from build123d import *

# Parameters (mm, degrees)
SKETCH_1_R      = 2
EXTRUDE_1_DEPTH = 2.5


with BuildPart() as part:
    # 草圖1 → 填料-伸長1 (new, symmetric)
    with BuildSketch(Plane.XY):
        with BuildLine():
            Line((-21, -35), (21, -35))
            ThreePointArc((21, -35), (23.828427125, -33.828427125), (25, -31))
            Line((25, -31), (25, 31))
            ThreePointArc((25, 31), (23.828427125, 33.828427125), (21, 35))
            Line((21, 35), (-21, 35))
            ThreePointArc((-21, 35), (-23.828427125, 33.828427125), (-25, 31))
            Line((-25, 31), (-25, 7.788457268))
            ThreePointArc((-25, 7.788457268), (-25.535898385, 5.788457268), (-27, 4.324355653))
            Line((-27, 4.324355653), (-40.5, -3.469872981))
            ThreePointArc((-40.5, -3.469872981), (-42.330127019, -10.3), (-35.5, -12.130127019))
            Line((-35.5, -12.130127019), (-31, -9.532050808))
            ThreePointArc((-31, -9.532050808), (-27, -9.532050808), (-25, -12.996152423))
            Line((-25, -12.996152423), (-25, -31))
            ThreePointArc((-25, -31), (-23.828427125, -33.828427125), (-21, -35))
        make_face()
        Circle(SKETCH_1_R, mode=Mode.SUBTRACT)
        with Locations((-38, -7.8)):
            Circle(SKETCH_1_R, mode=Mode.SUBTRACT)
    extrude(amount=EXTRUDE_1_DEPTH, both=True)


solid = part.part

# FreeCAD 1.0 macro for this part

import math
import FreeCAD as App
import Part
import Sketcher
Q = App.Units.Quantity

doc = App.newDocument("Part")
body = doc.addObject("PartDesign::Body", "Body")

sketch1 = body.newObject("Sketcher::SketchObject", "Sketch")
sketch1.AttachmentSupport = (doc.getObject("XY_Plane"), [""])
sketch1.MapMode = "FlatFace"
sketch1.addGeometry([
    Part.LineSegment(App.Vector(-21, -35, 0), App.Vector(21, -35, 0)),
    Part.ArcOfCircle(Part.Circle(App.Vector(21, -31, 0), App.Vector(0, 0, 1), 4), math.radians(-90), math.radians(0)),
    Part.LineSegment(App.Vector(25, -31, 0), App.Vector(25, 31, 0)),
    Part.ArcOfCircle(Part.Circle(App.Vector(21, 31, 0), App.Vector(0, 0, 1), 4), math.radians(0), math.radians(90)),
    Part.LineSegment(App.Vector(21, 35, 0), App.Vector(-21, 35, 0)),
    Part.ArcOfCircle(Part.Circle(App.Vector(-21, 31, 0), App.Vector(0, 0, 1), 4), math.radians(90), math.radians(180)),
    Part.LineSegment(App.Vector(-25, 31, 0), App.Vector(-25, 7.8, 0)),
    Part.ArcOfCircle(Part.Circle(App.Vector(-29, 7.8, 0), App.Vector(0, 0, 1), 4), math.radians(-60), math.radians(0)),
    Part.LineSegment(App.Vector(-27, 4.3, 0), App.Vector(-40.5, -3.5, 0)),
    Part.ArcOfCircle(Part.Circle(App.Vector(-38, -7.8, 0), App.Vector(0, 0, 1), 5), math.radians(120), math.radians(300)),
    Part.LineSegment(App.Vector(-35.5, -12.1, 0), App.Vector(-31, -9.5, 0)),
    Part.ArcOfCircle(Part.Circle(App.Vector(-29, -13, 0), App.Vector(0, 0, 1), 4), math.radians(0), math.radians(120)),
    Part.LineSegment(App.Vector(-25, -13, 0), App.Vector(-25, -31, 0)),
    Part.ArcOfCircle(Part.Circle(App.Vector(-21, -31, 0), App.Vector(0, 0, 1), 4), math.radians(180), math.radians(270)),
    Part.Circle(App.Vector(-38, -7.8, 0), App.Vector(0, 0, 1), 2),
    Part.Circle(App.Vector(0, 0, 0), App.Vector(0, 0, 1), 2),
], False)
sketch1.addConstraint([
    Sketcher.Constraint("Tangent", 0, 2, 1, 1),
    Sketcher.Constraint("Tangent", 1, 2, 2, 1),
    Sketcher.Constraint("Tangent", 2, 2, 3, 1),
    Sketcher.Constraint("Tangent", 3, 2, 4, 1),
    Sketcher.Constraint("Tangent", 4, 2, 5, 1),
    Sketcher.Constraint("Tangent", 5, 2, 6, 1),
    Sketcher.Constraint("Tangent", 6, 2, 7, 2),
    Sketcher.Constraint("Tangent", 7, 1, 8, 1),
    Sketcher.Constraint("Tangent", 8, 2, 9, 1),
    Sketcher.Constraint("Tangent", 9, 2, 10, 1),
    Sketcher.Constraint("Tangent", 10, 2, 11, 2),
    Sketcher.Constraint("Tangent", 11, 1, 12, 1),
    Sketcher.Constraint("Tangent", 12, 2, 13, 1),
    Sketcher.Constraint("Tangent", 13, 2, 0, 1),
    Sketcher.Constraint("Horizontal", 0),
    Sketcher.Constraint("Vertical", 2),
    Sketcher.Constraint("Horizontal", 4),
    Sketcher.Constraint("Vertical", 6),
    Sketcher.Constraint("Vertical", 12),
    Sketcher.Constraint("Coincident", 15, 3, -1, 1),
    Sketcher.Constraint("Coincident", 14, 3, 9, 3),
    Sketcher.Constraint("Equal", 1, 3),
    Sketcher.Constraint("Equal", 3, 5),
    Sketcher.Constraint("Equal", 5, 7),
    Sketcher.Constraint("Equal", 7, 11),
    Sketcher.Constraint("Equal", 11, 13),
    Sketcher.Constraint("Equal", 14, 15),
    Sketcher.Constraint("Symmetric", 1, 3, 5, 3, -1, 1),
    Sketcher.Constraint("Parallel", 8, 10),
    Sketcher.Constraint("Vertical", 7, 3, 11, 3),
    Sketcher.Constraint("Diameter", 14, 4.0),
    Sketcher.Constraint("Radius", 1, 4.0),
    Sketcher.Constraint("Radius", 9, 5.0),
    Sketcher.Constraint("DistanceX", 0, 1, 0, 2, 42.0),
    Sketcher.Constraint("DistanceY", 2, 1, 2, 2, 62.0),
    Sketcher.Constraint("Angle", 8, Q("-150 deg")),
    Sketcher.Constraint("DistanceX", 9, 3, -1, 1, 38.0),
    Sketcher.Constraint("DistanceY", 9, 3, -1, 1, 7.8),
])
pad1 = body.newObject("PartDesign::Pad", "Pad")
pad1.Profile = sketch1
pad1.Length = 5
pad1.Midplane = True

doc.recompute()
